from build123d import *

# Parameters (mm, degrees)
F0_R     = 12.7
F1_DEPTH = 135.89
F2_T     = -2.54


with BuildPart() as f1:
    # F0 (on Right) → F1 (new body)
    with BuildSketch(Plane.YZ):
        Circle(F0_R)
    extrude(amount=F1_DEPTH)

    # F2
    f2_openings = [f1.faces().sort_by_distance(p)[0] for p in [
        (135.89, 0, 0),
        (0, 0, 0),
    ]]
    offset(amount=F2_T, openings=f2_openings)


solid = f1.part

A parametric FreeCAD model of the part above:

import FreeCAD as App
import Part
import Sketcher
from FreeCAD import Vector
Q = App.Units.Quantity


def faces_at(feature, points):
    """Names of the faces that lie closest to the given points."""
    faces = feature.Shape.Faces
    near = lambda p: min(range(len(faces)), key=lambda i: faces[i].distToShape(Part.Vertex(*p))[0])
    return sorted({f"Face{near(p) + 1}" for p in points})

doc = App.newDocument("Part")
body = doc.addObject("PartDesign::Body", "Body")

# Sketch on YZ plane
sketch1 = doc.addObject("Sketcher::SketchObject", "Sketch")
body.addObject(sketch1)
sketch1.AttachmentSupport = (doc.YZ_Plane, [""])
sketch1.MapMode = "FlatFace"
sketch1.addGeometry(Part.Circle(Vector(0, 0, 0), Vector(0, 0, 1), 12.7), False)
sketch1.addConstraint([
    Sketcher.Constraint("Coincident", 0, 3, -1, 1),
    Sketcher.Constraint("Diameter", 0, Q("1 in")),
])
pad1 = doc.addObject("PartDesign::Pad", "Pad")
body.addObject(pad1)
pad1.Profile = sketch1
pad1.Length = Q("5.35 in")
doc.recompute()

thickness = doc.addObject("PartDesign::Thickness", "Thickness")
body.addObject(thickness)
thickness.Base = (pad1, faces_at(pad1, [(135.89, 0, 0), (0, 0, 0)]))
thickness.Value = Q("0.1 in")
thickness.Reversed = True
thickness.Join = "Arc"

doc.recompute()
